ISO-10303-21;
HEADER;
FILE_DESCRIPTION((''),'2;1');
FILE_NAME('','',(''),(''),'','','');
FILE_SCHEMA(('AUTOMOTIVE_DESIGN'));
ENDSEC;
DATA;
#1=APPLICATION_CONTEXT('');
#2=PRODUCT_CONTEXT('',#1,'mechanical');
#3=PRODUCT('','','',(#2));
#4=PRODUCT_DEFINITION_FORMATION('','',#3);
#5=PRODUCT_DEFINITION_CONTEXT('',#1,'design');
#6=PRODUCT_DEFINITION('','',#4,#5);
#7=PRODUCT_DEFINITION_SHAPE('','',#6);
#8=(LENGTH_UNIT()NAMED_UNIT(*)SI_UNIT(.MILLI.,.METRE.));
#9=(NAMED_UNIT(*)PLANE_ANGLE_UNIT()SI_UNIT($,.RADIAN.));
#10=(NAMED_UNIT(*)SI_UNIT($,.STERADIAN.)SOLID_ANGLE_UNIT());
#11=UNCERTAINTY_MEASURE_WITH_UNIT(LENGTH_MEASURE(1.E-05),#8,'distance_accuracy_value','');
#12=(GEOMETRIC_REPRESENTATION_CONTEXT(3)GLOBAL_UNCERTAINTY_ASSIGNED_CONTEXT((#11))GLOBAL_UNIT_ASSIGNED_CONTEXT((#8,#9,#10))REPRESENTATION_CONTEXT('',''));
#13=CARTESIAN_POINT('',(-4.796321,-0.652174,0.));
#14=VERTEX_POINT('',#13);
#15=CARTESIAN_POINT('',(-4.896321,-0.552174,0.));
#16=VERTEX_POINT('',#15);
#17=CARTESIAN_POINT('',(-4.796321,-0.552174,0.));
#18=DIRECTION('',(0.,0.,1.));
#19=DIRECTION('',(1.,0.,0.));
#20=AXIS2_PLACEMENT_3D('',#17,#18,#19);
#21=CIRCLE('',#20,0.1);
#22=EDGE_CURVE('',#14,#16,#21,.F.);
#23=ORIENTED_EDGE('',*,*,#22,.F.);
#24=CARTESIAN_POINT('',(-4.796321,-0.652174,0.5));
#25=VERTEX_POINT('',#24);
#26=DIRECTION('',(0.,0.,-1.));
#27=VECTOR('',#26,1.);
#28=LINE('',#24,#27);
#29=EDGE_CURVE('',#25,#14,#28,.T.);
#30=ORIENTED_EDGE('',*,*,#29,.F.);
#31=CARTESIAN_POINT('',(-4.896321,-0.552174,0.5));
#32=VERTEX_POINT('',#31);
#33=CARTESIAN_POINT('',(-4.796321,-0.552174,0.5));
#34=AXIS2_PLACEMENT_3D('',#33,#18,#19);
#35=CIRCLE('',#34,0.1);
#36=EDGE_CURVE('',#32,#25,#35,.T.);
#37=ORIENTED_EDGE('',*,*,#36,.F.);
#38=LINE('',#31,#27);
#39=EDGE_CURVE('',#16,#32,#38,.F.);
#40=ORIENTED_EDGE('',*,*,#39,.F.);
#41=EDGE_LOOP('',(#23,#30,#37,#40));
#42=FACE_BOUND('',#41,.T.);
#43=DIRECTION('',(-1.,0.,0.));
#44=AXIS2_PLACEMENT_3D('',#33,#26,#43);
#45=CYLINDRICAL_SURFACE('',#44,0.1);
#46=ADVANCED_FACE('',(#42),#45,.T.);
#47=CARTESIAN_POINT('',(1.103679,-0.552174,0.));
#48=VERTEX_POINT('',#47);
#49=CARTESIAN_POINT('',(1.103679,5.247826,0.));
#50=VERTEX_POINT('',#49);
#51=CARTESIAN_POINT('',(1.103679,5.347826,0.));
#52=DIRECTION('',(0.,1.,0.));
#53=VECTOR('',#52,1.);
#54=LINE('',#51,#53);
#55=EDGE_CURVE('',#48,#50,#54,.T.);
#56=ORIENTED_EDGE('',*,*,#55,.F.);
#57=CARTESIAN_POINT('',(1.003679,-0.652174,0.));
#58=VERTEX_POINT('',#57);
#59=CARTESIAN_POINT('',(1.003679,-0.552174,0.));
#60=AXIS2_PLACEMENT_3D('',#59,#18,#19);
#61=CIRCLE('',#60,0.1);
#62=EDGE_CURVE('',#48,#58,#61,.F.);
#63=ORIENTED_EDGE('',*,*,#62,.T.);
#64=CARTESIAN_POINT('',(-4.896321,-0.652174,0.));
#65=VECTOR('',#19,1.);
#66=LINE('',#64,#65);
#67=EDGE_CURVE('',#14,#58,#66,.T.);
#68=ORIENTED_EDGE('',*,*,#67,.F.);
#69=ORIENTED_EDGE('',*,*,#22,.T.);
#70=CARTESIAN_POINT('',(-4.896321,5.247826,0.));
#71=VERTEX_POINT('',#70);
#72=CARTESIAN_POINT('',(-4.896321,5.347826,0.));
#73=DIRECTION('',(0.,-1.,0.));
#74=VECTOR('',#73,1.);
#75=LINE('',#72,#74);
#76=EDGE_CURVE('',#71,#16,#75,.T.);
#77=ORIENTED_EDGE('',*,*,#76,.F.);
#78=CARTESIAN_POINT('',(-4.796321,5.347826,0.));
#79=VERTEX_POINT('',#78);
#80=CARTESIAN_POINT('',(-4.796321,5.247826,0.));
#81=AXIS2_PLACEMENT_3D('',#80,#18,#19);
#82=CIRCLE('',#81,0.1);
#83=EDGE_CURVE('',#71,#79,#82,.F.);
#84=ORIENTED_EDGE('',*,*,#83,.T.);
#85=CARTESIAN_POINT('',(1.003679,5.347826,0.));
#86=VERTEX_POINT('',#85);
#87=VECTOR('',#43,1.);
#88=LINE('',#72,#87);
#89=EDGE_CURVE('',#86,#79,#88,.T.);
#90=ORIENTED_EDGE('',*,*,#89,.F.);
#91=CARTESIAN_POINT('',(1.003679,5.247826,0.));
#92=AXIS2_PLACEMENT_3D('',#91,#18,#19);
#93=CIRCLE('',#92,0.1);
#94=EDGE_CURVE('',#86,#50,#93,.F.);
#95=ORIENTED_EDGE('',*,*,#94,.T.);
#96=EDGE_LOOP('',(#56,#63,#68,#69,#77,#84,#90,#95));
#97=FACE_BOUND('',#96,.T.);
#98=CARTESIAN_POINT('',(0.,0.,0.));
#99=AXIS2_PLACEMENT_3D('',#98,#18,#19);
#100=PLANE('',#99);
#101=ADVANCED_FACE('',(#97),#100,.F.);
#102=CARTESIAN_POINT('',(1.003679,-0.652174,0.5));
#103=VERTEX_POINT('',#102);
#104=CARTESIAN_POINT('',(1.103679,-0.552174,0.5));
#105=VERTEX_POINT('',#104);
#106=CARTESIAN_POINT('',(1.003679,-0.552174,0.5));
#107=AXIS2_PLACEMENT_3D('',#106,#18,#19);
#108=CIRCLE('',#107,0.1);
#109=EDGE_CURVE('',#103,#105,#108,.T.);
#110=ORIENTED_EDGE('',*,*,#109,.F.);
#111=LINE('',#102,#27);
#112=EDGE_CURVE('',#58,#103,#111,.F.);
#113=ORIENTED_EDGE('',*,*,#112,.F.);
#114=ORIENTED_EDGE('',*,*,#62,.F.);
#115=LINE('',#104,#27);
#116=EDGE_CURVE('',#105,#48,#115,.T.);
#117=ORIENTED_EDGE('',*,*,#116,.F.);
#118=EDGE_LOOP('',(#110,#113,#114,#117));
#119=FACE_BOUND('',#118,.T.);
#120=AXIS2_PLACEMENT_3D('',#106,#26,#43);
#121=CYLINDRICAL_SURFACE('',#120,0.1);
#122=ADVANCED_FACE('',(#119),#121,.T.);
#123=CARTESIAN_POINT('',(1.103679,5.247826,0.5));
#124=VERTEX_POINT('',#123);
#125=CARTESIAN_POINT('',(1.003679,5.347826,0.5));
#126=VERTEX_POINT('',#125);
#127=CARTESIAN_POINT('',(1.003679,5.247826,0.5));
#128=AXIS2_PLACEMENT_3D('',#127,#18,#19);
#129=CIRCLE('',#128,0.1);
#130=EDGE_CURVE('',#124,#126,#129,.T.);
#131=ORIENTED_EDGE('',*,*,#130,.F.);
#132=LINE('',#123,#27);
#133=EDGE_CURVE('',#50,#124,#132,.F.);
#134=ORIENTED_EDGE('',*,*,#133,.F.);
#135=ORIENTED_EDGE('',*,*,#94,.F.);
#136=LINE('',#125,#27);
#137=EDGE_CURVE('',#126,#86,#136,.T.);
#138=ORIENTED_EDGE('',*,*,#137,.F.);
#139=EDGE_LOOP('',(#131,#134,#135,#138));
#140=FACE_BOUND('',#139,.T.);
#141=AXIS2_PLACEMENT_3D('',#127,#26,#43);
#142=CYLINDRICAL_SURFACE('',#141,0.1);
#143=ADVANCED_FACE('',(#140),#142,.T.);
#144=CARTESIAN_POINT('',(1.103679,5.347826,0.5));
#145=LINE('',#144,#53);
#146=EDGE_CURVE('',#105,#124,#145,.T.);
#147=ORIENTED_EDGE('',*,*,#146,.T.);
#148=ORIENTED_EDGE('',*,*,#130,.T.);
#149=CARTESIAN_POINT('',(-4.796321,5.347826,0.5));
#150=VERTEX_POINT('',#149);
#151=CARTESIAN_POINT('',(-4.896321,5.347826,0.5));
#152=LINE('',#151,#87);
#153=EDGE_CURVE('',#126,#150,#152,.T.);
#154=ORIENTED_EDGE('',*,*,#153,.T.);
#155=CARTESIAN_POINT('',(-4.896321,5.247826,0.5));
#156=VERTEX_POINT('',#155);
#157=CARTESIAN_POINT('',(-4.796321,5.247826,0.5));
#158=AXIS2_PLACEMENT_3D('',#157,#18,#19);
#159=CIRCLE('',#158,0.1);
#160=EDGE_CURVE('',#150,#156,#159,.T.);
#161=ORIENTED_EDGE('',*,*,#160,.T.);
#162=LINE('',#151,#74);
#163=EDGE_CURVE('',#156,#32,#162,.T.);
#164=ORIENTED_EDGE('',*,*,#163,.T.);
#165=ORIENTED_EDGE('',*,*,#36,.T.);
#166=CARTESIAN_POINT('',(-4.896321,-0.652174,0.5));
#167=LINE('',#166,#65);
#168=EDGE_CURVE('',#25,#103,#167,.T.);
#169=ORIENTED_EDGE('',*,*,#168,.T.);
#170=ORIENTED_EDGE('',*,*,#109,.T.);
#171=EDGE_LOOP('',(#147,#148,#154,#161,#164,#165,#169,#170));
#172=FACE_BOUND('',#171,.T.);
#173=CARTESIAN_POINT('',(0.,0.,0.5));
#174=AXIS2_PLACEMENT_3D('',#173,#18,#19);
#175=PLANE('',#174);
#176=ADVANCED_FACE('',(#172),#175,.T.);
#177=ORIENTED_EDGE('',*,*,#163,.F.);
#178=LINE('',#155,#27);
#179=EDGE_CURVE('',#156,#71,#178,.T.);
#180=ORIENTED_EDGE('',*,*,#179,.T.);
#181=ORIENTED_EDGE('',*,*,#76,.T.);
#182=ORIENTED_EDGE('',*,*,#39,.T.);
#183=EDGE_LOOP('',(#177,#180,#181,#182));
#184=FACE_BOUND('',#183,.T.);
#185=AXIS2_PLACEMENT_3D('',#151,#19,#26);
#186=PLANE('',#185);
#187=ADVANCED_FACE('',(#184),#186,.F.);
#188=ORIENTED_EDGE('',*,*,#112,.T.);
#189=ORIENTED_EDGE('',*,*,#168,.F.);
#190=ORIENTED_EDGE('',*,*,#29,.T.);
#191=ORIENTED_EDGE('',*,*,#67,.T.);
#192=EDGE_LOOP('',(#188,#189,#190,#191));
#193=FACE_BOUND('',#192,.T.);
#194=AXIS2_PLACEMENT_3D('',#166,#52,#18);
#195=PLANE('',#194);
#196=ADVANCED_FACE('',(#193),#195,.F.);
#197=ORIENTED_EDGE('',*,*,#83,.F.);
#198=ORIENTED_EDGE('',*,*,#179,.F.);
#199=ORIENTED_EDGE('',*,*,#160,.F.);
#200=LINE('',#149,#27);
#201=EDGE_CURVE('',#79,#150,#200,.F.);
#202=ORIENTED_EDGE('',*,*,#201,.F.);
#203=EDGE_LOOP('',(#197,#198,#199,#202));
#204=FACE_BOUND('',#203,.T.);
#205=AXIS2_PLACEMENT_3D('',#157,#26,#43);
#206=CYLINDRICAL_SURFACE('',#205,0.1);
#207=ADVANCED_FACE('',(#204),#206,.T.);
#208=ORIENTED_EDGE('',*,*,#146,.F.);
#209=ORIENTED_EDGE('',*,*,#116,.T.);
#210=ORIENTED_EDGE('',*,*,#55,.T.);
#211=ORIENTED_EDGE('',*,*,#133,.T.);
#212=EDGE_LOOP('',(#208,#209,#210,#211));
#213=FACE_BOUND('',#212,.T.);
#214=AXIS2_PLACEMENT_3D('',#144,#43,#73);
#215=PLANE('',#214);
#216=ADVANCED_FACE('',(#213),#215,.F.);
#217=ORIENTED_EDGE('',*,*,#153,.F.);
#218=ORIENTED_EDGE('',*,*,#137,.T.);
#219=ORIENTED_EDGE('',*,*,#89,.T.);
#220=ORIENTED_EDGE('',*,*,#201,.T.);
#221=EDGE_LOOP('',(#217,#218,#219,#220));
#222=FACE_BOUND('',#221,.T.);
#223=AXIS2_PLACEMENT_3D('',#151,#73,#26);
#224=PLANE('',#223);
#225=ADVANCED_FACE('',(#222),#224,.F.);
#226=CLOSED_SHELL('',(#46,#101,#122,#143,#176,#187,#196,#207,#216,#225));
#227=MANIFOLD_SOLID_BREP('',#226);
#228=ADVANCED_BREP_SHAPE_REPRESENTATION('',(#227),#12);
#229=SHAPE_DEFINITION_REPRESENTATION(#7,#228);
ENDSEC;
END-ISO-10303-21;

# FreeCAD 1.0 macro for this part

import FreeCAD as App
import Part
import Sketcher
Q = App.Units.Quantity


def edges_at(feature, points):
    """Names of the edges that pass closest to the given points."""
    edges = feature.Shape.Edges
    near = lambda p: min(range(len(edges)), key=lambda i: edges[i].distToShape(Part.Vertex(*p))[0])
    return sorted({f"Edge{near(p) + 1}" for p in points})

doc = App.newDocument("Part")
params = doc.addObject("Spreadsheet::Sheet", "Params")
for row, (alias, value) in enumerate([
    ("sketch1_width", "6 mm"),
    ("pad1_length", "0.5 mm"),
    ("fillet_radius", "0.1 mm"),
], start=1):
    params.set(f"A{row}", alias)
    params.set(f"B{row}", "=" + value)
    params.setAlias(f"B{row}", alias)

body = doc.addObject("PartDesign::Body", "Body")

sketch1 = doc.addObject("Sketcher::SketchObject", "Sketch")
body.addObject(sketch1)
sketch1.AttachmentSupport = (doc.XY_Plane, [""])
sketch1.MapMode = "FlatFace"
sketch1.addGeometry([
    Part.LineSegment(App.Vector(-5, 5, 0), App.Vector(-5, -1, 0)),
    Part.LineSegment(App.Vector(-5, -1, 0), App.Vector(1, -1, 0)),
    Part.LineSegment(App.Vector(1, -1, 0), App.Vector(1, 5, 0)),
    Part.LineSegment(App.Vector(1, 5, 0), App.Vector(-5, 5, 0)),
], False)
sketch1.addConstraint([
    Sketcher.Constraint("Coincident", 0, 2, 1, 1),
    Sketcher.Constraint("Coincident", 1, 2, 2, 1),
    Sketcher.Constraint("Coincident", 2, 2, 3, 1),
    Sketcher.Constraint("Coincident", 3, 2, 0, 1),
    Sketcher.Constraint("Vertical", 0),
    Sketcher.Constraint("Horizontal", 1),
    Sketcher.Constraint("Vertical", 2),
    Sketcher.Constraint("Horizontal", 3),
    Sketcher.Constraint("Equal", 3, 0),
    Sketcher.Constraint("DistanceX", 1, 1, 1, 2, Q("6 mm")),
    Sketcher.Constraint("DistanceX", 0, 2, -1, 1, Q("4.896321 mm")),
    Sketcher.Constraint("DistanceY", 0, 2, -1, 1, Q("0.652174 mm")),
])
sketch1.setExpression("Constraints[9]", "Params.sketch1_width")
pad1 = doc.addObject("PartDesign::Pad", "Pad")
body.addObject(pad1)
pad1.Profile = sketch1
pad1.setExpression("Length", "Params.pad1_length")
doc.recompute()

fillet = doc.addObject("PartDesign::Fillet", "Fillet")
body.addObject(fillet)
fillet.Base = (pad1, edges_at(pad1, [
    (-4.896, 5.348, 0.25),
    (1.104, 5.348, 0.25),
    (1.104, -0.652, 0.25),
    (-4.896, -0.652, 0.25),
]))
fillet.setExpression("Radius", "Params.fillet_radius")

doc.recompute()
